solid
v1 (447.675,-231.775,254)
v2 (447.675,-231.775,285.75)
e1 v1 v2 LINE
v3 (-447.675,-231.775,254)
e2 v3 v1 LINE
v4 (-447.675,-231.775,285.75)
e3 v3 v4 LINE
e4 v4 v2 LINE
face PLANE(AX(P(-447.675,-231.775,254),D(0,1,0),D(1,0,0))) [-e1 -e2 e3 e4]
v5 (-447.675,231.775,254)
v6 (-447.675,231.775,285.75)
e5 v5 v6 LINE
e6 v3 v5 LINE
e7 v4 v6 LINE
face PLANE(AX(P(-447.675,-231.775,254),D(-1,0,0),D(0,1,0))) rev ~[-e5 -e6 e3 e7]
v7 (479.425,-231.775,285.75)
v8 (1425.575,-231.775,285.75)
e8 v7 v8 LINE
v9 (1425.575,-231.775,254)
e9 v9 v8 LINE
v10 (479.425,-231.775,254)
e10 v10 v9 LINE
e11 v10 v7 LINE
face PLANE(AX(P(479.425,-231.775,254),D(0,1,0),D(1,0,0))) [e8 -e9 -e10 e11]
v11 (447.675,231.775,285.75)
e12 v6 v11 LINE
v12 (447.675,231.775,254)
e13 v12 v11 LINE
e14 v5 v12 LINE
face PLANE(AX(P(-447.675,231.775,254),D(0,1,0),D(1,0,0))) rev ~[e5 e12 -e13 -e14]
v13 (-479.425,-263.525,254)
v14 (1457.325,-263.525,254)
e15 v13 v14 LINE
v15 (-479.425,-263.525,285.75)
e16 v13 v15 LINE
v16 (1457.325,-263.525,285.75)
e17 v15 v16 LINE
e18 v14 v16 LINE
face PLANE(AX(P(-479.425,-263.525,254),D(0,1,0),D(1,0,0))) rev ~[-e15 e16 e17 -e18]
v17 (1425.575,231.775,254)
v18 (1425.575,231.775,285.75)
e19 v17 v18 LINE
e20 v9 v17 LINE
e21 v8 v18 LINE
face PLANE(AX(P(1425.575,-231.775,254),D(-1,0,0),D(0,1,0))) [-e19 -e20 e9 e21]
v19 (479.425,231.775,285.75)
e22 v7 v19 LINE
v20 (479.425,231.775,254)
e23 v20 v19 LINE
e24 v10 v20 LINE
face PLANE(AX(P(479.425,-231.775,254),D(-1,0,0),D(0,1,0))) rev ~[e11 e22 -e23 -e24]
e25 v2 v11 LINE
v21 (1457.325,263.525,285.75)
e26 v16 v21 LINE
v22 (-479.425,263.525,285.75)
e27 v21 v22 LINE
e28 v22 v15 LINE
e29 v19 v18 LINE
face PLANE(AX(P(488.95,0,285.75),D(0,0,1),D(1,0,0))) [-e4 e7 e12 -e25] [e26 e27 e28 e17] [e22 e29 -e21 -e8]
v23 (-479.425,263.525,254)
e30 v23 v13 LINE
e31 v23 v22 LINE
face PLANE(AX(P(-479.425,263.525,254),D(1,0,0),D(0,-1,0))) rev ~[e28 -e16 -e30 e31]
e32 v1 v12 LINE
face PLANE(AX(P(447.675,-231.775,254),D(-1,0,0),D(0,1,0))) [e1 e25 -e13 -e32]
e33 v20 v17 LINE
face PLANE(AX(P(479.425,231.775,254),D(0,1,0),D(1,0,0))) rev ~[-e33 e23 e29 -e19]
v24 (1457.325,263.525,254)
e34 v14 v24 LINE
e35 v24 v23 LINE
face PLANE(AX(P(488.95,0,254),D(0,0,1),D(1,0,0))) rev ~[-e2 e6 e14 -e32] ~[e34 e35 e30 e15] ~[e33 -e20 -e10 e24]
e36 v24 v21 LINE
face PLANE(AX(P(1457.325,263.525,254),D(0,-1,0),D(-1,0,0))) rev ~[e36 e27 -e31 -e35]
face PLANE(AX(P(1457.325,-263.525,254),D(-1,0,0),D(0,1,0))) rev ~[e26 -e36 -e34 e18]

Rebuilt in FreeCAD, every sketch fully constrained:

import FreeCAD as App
import Part
import Sketcher
from FreeCAD import Vector
Q = App.Units.Quantity

doc = App.newDocument("Part")
body = doc.addObject("PartDesign::Body", "Body")

# Sketch on XY plane
sketch1 = body.newObject("Sketcher::SketchObject", "Sketch")
sketch1.AttachmentSupport = (doc.getObject("XY_Plane"), [""])
sketch1.MapMode = "FlatFace"
sketch1.AttachmentOffset = App.Placement(Vector(0, 0, 10 * 25.4), App.Rotation())
sketch1.addGeometry([
    Part.LineSegment(Vector(1457.325, 263.525, 0), Vector(-479.425, 263.525, 0)),  # 0
    Part.LineSegment(Vector(-479.425, 263.525, 0), Vector(-479.425, -263.525, 0)),  # 1
    Part.LineSegment(Vector(-479.425, -263.525, 0), Vector(1457.325, -263.525, 0)),  # 2
    Part.LineSegment(Vector(1457.325, -263.525, 0), Vector(1457.325, 263.525, 0)),  # 3
    Part.LineSegment(Vector(447.675, -231.775, 0), Vector(-447.675, -231.775, 0)),  # 4
    Part.LineSegment(Vector(-447.675, -231.775, 0), Vector(-447.675, 231.775, 0)),  # 5
    Part.LineSegment(Vector(-447.675, 231.775, 0), Vector(447.675, 231.775, 0)),  # 6
    Part.LineSegment(Vector(447.675, 231.775, 0), Vector(447.675, -231.775, 0)),  # 7
    Part.LineSegment(Vector(1425.575, -231.775, 0), Vector(479.425, -231.775, 0)),  # 8
    Part.LineSegment(Vector(479.425, -231.775, 0), Vector(479.425, 231.775, 0)),  # 9
    Part.LineSegment(Vector(479.425, 231.775, 0), Vector(1425.575, 231.775, 0)),  # 10
    Part.LineSegment(Vector(1425.575, 231.775, 0), Vector(1425.575, -231.775, 0)),  # 11
], False)
sketch1.addConstraint([
    Sketcher.Constraint("Coincident", 0, 2, 1, 1),
    Sketcher.Constraint("Coincident", 1, 2, 2, 1),
    Sketcher.Constraint("Coincident", 2, 2, 3, 1),
    Sketcher.Constraint("Coincident", 3, 2, 0, 1),
    Sketcher.Constraint("Coincident", 4, 2, 5, 1),
    Sketcher.Constraint("Coincident", 5, 2, 6, 1),
    Sketcher.Constraint("Coincident", 6, 2, 7, 1),
    Sketcher.Constraint("Coincident", 7, 2, 4, 1),
    Sketcher.Constraint("Coincident", 8, 2, 9, 1),
    Sketcher.Constraint("Coincident", 9, 2, 10, 1),
    Sketcher.Constraint("Coincident", 10, 2, 11, 1),
    Sketcher.Constraint("Coincident", 11, 2, 8, 1),
    Sketcher.Constraint("Horizontal", 0),
    Sketcher.Constraint("Vertical", 1),
    Sketcher.Constraint("Horizontal", 2),
    Sketcher.Constraint("Vertical", 3),
    Sketcher.Constraint("Horizontal", 4),
    Sketcher.Constraint("Vertical", 5),
    Sketcher.Constraint("Horizontal", 6),
    Sketcher.Constraint("Vertical", 7),
    Sketcher.Constraint("Horizontal", 8),
    Sketcher.Constraint("Vertical", 9),
    Sketcher.Constraint("Horizontal", 10),
    Sketcher.Constraint("Vertical", 11),
    Sketcher.Constraint("Symmetric", 4, 2, 6, 2, -1, 1),
    Sketcher.Constraint("Horizontal", 7, 2, 8, 2),
    Sketcher.Constraint("Horizontal", 6, 2, 9, 2),
    Sketcher.Constraint("DistanceX", 4, 2, 2, 2, Q("75 in")),
    Sketcher.Constraint("DistanceX", 0, 2, 0, 1, Q("76.25 in")),
    Sketcher.Constraint("DistanceX", 4, 2, 4, 1, Q("35.25 in")),
    Sketcher.Constraint("DistanceX", 8, 2, 8, 1, Q("37.25 in")),
    Sketcher.Constraint("DistanceY", 1, 2, 1, 1, Q("20.75 in")),
    Sketcher.Constraint("DistanceY", 5, 1, 5, 2, Q("18.25 in")),
    Sketcher.Constraint("DistanceY", 4, 2, 0, 2, Q("19.5 in")),
    Sketcher.Constraint("DistanceX", 4, 2, 8, 2, Q("36.5 in")),
])
pad1 = body.newObject("PartDesign::Pad", "Pad")
pad1.Profile = sketch1
pad1.Length = Q("1.25 in")

doc.recompute()
